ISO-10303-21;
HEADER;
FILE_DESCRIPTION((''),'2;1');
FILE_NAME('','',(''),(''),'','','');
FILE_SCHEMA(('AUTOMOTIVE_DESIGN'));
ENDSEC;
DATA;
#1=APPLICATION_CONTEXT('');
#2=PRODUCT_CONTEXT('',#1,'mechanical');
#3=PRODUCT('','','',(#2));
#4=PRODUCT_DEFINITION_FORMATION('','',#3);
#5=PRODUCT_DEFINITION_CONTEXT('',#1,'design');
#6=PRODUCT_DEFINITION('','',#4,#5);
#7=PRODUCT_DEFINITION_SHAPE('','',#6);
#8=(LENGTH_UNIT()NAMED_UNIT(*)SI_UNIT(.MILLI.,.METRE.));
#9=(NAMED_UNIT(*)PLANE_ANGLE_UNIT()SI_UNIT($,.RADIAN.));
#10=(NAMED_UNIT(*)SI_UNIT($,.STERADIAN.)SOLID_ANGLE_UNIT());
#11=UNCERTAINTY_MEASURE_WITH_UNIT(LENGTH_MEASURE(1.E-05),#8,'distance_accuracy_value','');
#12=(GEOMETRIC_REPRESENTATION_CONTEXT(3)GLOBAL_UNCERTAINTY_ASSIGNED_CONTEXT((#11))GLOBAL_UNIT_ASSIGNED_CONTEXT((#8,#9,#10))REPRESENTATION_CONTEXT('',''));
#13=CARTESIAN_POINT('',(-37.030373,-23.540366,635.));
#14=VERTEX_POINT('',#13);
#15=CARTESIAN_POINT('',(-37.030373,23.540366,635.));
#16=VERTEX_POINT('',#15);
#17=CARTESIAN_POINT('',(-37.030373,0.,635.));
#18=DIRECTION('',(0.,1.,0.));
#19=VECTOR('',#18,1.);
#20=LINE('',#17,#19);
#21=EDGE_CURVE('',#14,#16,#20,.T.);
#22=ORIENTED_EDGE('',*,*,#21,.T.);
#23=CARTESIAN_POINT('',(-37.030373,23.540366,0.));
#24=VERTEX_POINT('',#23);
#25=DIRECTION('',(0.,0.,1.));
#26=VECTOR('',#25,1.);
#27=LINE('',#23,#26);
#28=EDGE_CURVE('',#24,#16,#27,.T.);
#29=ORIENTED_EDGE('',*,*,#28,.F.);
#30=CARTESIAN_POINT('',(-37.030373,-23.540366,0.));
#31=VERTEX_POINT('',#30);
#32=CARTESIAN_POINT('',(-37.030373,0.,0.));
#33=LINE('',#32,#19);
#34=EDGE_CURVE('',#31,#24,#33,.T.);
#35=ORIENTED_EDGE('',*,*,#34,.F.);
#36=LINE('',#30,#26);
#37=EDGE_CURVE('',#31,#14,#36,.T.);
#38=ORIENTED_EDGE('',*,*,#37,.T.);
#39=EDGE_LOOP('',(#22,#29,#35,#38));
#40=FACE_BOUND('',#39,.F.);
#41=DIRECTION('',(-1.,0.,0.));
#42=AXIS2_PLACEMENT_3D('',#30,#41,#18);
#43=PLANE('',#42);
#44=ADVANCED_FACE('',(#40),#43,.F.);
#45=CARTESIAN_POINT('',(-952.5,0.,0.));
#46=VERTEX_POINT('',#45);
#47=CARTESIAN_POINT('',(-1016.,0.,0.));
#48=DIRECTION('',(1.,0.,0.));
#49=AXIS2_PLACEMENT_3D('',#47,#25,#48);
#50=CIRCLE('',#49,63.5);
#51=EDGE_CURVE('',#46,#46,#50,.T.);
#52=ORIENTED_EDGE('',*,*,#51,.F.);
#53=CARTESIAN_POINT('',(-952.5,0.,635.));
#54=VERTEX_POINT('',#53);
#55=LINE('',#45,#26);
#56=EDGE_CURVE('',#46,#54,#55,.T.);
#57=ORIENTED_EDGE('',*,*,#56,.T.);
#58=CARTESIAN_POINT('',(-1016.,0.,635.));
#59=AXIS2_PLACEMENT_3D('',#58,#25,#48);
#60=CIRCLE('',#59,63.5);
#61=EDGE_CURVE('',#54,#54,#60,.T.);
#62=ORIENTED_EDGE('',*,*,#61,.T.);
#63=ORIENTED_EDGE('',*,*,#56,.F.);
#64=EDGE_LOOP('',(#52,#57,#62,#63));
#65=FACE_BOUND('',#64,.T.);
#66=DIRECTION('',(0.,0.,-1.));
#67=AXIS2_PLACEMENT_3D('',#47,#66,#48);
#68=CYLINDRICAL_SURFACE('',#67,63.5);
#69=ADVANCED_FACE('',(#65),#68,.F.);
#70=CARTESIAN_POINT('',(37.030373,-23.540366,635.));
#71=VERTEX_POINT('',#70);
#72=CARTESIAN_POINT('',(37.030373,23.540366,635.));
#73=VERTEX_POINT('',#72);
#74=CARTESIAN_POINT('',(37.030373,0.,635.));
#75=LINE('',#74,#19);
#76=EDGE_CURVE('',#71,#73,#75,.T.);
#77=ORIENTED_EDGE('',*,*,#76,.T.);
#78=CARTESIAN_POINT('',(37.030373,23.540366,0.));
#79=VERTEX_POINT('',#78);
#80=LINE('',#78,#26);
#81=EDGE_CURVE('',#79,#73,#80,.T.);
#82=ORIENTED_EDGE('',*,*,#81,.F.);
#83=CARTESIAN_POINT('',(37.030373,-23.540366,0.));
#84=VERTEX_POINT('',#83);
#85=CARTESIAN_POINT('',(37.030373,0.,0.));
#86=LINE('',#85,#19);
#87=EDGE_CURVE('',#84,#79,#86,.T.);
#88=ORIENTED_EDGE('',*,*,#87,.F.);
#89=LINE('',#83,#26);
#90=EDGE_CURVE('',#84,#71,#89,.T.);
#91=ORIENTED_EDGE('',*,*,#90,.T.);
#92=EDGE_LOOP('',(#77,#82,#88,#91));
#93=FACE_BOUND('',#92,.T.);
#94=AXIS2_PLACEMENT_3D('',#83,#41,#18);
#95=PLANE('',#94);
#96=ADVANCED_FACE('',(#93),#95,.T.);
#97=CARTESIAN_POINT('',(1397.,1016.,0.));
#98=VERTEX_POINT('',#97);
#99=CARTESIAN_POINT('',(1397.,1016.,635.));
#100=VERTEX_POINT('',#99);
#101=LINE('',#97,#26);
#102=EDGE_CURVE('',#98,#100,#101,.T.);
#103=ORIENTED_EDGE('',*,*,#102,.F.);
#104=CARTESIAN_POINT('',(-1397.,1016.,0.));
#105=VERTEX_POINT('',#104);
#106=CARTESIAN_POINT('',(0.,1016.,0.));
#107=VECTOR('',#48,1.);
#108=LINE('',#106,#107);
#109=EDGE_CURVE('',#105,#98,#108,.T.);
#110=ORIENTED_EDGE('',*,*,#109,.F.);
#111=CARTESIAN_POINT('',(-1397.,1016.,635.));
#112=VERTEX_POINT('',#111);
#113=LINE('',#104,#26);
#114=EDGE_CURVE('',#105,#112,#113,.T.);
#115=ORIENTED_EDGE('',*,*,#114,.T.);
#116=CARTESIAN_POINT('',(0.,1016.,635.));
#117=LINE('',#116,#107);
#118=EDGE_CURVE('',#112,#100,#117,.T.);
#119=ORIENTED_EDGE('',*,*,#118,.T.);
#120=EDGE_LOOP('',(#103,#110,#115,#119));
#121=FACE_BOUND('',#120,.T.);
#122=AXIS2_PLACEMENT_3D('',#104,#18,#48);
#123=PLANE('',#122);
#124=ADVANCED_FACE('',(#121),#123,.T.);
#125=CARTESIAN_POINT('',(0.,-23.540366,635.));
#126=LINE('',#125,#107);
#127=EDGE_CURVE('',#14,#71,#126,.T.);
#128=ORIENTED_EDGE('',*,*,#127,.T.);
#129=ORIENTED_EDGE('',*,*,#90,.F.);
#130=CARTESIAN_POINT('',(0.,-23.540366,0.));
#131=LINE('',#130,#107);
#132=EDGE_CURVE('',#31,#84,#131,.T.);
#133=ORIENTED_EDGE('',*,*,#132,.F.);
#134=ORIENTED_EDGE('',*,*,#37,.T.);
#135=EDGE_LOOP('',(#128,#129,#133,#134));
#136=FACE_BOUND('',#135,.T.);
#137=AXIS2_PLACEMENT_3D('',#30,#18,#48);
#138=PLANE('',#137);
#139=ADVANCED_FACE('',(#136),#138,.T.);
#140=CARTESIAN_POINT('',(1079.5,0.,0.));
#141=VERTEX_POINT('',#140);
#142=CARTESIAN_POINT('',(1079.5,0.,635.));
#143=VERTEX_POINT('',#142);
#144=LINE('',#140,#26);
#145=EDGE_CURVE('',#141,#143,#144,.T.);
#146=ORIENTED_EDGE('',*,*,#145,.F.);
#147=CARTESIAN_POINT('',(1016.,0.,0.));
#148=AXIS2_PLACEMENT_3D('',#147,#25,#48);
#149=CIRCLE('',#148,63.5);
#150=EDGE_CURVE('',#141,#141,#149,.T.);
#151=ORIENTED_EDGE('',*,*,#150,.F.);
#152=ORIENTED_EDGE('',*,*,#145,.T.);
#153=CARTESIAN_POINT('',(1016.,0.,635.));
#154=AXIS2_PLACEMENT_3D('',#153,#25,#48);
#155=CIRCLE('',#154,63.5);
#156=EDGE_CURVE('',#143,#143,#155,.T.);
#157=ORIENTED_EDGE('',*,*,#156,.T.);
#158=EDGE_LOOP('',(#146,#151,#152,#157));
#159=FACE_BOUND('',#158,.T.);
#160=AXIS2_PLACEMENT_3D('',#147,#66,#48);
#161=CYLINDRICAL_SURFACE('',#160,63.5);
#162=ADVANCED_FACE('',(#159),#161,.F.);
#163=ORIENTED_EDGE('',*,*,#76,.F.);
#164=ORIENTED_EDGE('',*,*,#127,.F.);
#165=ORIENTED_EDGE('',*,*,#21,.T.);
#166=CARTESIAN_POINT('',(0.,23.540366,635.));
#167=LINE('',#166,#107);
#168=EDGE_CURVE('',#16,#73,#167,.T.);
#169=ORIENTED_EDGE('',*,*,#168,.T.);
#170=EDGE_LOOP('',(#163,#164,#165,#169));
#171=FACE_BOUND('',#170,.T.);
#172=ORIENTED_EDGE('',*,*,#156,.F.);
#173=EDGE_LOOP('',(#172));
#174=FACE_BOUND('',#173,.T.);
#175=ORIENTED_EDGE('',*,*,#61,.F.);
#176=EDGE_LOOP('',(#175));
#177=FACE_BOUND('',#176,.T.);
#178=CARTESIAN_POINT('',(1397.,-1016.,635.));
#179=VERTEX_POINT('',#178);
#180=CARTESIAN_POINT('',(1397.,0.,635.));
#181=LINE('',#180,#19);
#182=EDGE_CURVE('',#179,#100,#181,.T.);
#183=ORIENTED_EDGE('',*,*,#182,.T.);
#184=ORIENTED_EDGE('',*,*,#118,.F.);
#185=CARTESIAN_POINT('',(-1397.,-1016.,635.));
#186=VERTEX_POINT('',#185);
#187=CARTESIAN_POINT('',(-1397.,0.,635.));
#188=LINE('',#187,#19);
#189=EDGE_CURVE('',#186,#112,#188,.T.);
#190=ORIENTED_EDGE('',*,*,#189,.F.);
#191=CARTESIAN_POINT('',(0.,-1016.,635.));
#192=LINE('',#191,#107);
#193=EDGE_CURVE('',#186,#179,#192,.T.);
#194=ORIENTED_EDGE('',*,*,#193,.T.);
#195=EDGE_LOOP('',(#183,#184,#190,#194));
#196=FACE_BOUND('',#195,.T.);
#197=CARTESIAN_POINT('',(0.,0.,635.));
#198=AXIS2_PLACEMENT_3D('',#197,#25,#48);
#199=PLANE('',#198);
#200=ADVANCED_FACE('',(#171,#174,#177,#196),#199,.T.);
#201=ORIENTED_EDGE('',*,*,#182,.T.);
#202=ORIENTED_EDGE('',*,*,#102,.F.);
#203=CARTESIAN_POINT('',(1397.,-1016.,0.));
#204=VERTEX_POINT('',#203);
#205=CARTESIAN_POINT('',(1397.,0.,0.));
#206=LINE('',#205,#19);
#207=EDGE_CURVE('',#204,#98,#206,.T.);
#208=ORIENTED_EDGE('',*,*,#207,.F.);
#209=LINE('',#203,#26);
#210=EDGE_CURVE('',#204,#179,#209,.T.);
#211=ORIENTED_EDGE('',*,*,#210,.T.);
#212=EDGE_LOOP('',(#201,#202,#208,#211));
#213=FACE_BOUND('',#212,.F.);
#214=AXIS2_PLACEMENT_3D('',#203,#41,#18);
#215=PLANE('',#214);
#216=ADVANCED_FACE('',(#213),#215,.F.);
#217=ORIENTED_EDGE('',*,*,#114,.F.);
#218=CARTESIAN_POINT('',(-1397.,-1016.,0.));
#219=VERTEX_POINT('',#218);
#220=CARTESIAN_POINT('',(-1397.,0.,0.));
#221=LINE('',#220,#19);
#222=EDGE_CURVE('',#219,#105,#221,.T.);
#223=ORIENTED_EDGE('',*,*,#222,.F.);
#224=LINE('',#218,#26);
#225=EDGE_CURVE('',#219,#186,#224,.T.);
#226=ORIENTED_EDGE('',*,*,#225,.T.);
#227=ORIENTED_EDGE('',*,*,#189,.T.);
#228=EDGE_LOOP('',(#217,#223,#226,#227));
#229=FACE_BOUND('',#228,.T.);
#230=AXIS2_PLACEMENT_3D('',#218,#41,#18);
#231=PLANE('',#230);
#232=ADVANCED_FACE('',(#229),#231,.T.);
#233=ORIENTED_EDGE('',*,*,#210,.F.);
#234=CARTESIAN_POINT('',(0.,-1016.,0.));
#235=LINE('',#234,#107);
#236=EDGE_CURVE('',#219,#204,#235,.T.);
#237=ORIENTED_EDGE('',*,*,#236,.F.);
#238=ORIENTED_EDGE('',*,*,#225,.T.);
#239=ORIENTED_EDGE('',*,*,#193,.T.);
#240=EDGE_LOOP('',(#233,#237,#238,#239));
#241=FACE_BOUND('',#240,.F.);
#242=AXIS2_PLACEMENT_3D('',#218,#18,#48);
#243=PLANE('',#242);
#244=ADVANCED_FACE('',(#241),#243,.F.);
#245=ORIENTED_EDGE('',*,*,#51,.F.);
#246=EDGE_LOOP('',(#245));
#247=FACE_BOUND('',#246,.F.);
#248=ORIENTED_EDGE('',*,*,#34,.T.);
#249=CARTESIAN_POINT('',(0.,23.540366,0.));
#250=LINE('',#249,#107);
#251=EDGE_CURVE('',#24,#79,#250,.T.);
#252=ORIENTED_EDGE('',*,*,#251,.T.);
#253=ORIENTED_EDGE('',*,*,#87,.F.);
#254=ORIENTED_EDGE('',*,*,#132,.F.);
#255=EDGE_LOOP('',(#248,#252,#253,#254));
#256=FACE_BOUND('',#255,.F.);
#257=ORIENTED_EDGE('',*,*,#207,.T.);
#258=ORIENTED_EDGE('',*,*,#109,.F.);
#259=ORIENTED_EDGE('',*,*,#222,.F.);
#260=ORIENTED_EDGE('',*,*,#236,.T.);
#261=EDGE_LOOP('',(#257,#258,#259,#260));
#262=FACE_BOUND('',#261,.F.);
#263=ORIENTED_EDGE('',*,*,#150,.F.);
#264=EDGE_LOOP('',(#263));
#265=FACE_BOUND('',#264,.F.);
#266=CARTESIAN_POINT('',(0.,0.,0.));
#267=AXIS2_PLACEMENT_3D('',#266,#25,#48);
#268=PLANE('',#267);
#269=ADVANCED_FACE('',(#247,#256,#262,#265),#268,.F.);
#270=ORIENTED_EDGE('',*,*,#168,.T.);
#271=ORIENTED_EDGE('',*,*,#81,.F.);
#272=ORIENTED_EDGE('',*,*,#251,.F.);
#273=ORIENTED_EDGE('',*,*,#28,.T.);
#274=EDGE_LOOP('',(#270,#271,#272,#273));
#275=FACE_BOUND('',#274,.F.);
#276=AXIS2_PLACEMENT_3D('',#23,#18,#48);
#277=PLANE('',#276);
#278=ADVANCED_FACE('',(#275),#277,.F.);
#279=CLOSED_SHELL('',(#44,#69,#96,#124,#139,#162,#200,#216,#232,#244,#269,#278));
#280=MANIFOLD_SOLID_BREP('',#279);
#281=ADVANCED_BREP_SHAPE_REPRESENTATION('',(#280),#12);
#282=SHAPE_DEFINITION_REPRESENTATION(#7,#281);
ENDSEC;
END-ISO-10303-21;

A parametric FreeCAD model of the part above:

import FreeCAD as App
import Part
import Sketcher

V = App.Vector
Q = App.Units.Quantity

doc = App.newDocument("Part")
body = doc.addObject("PartDesign::Body", "Body")

# Sketch on XY plane
sketch1 = body.newObject("Sketcher::SketchObject", "Sketch")
sketch1.AttachmentSupport = (doc.getObject("XY_Plane"), [""])
sketch1.MapMode = "FlatFace"
sketch1.addGeometry([
    Part.LineSegment(V(-1397, 1016, 0), V(-1397, -1016, 0)),  # 0
    Part.LineSegment(V(-1397, -1016, 0), V(1397, -1016, 0)),  # 1
    Part.LineSegment(V(1397, -1016, 0), V(1397, 1016, 0)),  # 2
    Part.LineSegment(V(1397, 1016, 0), V(-1397, 1016, 0)),  # 3
    Part.Circle(V(-1016, 0, 0), V(0, 0, 1), 63.5),  # 4
    Part.LineSegment(V(37.030373, -23.540366, 0), V(-37.030373, -23.540366, 0)),  # 5
    Part.LineSegment(V(-37.030373, -23.540366, 0), V(-37.030373, 23.540366, 0)),  # 6
    Part.LineSegment(V(-37.030373, 23.540366, 0), V(37.030373, 23.540366, 0)),  # 7
    Part.LineSegment(V(37.030373, 23.540366, 0), V(37.030373, -23.540366, 0)),  # 8
    Part.Circle(V(1016, 0, 0), V(0, 0, 1), 63.5),  # 9
], False)
sketch1.addConstraint([
    Sketcher.Constraint("Coincident", 0, 2, 1, 1),
    Sketcher.Constraint("Coincident", 1, 2, 2, 1),
    Sketcher.Constraint("Coincident", 2, 2, 3, 1),
    Sketcher.Constraint("Coincident", 3, 2, 0, 1),
    Sketcher.Constraint("Coincident", 5, 2, 6, 1),
    Sketcher.Constraint("Coincident", 6, 2, 7, 1),
    Sketcher.Constraint("Coincident", 7, 2, 8, 1),
    Sketcher.Constraint("Coincident", 8, 2, 5, 1),
    Sketcher.Constraint("Vertical", 0),
    Sketcher.Constraint("Horizontal", 1),
    Sketcher.Constraint("Vertical", 2),
    Sketcher.Constraint("Horizontal", 3),
    Sketcher.Constraint("Horizontal", 5),
    Sketcher.Constraint("Vertical", 6),
    Sketcher.Constraint("Horizontal", 7),
    Sketcher.Constraint("Vertical", 8),
    Sketcher.Constraint("Equal", 4, 9),
    Sketcher.Constraint("Symmetric", 4, 3, 9, 3, -1, 1),
    Sketcher.Constraint("Symmetric", 0, 2, 2, 2, -1, 1),
    Sketcher.Constraint("Symmetric", 5, 2, 7, 2, -1, 1),
    Sketcher.Constraint("PointOnObject", 4, 3, -1),
    Sketcher.Constraint("Diameter", 4, Q("5 in")),
    Sketcher.Constraint("DistanceX", 1, 1, 1, 2, Q("110 in")),
    Sketcher.Constraint("DistanceY", 0, 2, 0, 1, Q("80 in")),
    Sketcher.Constraint("DistanceX", 4, 3, -1, 1, Q("40 in")),
    Sketcher.Constraint("DistanceY", 6, 1, 6, 2, Q("47.080732 mm")),
    Sketcher.Constraint("DistanceX", 5, 2, 5, 1, Q("74.060746 mm")),
])
pad1 = body.newObject("PartDesign::Pad", "Pad")
pad1.Profile = sketch1
pad1.Length = Q("25 in")

doc.recompute()
